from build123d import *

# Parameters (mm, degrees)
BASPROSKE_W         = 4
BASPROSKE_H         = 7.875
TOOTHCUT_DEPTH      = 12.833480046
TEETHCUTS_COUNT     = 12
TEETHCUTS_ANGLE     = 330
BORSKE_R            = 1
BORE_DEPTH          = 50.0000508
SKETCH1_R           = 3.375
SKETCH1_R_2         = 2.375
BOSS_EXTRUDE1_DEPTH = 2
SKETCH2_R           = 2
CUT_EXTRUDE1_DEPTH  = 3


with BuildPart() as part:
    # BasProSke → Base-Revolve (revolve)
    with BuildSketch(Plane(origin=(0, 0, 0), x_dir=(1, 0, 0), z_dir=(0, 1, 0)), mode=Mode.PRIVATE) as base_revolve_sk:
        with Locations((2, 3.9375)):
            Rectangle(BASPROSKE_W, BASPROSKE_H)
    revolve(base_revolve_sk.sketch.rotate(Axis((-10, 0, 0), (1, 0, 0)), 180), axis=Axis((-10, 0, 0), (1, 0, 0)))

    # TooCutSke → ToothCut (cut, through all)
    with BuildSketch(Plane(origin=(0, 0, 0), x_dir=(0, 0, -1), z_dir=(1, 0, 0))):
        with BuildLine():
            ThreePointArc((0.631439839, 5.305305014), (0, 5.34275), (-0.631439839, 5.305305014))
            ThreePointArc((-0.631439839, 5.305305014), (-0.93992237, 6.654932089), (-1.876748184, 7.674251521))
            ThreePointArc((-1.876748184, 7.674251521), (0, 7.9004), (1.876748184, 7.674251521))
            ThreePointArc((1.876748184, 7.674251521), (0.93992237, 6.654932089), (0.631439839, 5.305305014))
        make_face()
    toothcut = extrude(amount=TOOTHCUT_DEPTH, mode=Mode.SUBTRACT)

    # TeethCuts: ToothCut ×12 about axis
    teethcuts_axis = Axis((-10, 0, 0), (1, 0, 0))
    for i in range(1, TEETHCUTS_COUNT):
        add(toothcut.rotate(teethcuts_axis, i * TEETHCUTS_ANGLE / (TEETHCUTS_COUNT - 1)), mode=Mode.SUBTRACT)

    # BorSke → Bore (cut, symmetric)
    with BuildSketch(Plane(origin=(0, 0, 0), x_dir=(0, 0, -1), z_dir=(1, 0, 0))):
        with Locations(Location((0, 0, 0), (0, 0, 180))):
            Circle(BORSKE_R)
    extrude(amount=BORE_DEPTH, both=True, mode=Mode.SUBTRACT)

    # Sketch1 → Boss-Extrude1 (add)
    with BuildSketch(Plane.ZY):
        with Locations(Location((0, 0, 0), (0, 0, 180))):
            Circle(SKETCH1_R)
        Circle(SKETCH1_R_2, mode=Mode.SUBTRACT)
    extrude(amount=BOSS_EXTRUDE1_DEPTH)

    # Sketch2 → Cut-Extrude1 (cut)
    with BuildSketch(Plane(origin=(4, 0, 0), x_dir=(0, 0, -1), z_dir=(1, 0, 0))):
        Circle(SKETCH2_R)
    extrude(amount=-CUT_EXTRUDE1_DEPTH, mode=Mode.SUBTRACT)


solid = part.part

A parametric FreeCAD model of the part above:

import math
import FreeCAD as App
import Part
import Sketcher
from FreeCAD import Vector
Q = App.Units.Quantity


def add_polygon(sketch, points):
    """Adds a closed chain of lines whose ends are joined by coincident constraints."""
    first, n = sketch.GeometryCount, len(points)
    for a, b in zip(points, points[1:] + points[:1]):
        sketch.addGeometry(Part.LineSegment(App.Vector(*a, 0), App.Vector(*b, 0)), False)
    for i in range(n):
        sketch.addConstraint(Sketcher.Constraint("Coincident", first + i, 2, first + (i + 1) % n, 1))

doc = App.newDocument("Part")
params = doc.addObject("Spreadsheet::Sheet", "Params")
for row, (alias, value) in enumerate([
    ("sketch1_width", "4 mm"),
    ("revolution_angle", "360 deg"),
    ("sketch2_radius", "2.7 mm"),
    ("sketch3_diameter", "2 mm"),
    ("pocket2_length", "100.000102 mm"),
    ("sketch4_diameter", "6.75 mm"),
    ("sketch4_diameter2", "4.75 mm"),
    ("pad1_length", "2 mm"),
    ("sketch5_diameter", "4 mm"),
    ("pocket3_length", "3 mm"),
], start=1):
    params.set(f"A{row}", alias)
    params.set(f"B{row}", "=" + value)
    params.setAlias(f"B{row}", alias)

body = doc.addObject("PartDesign::Body", "Body")

sketch1 = doc.addObject("Sketcher::SketchObject", "Sketch")
body.addObject(sketch1)
sketch1.AttachmentSupport = (doc.XZ_Plane, [""])
sketch1.MapMode = "FlatFace"
add_polygon(sketch1, [(0, -7.9), (0, 0), (4, 0), (4, -7.9)])
sketch1.addConstraint([
    Sketcher.Constraint("Vertical", 0),
    Sketcher.Constraint("Horizontal", 1),
    Sketcher.Constraint("Vertical", 2),
    Sketcher.Constraint("Horizontal", 3),
    Sketcher.Constraint("Coincident", 0, 2, -1, 1),
    Sketcher.Constraint("DistanceX", 1, 1, 1, 2, Q("4 mm")),
    Sketcher.Constraint("DistanceY", 0, 1, 0, 2, Q("7.875 mm")),
])
sketch1.setExpression("Constraints[9]", "Params.sketch1_width")
revolution = doc.addObject("PartDesign::Revolution", "Revolution")
body.addObject(revolution)
revolution.Profile = sketch1
revolution.ReferenceAxis = (sketch1, ["H_Axis"])
revolution.setExpression("Angle", "Params.revolution_angle")

sketch2 = doc.addObject("Sketcher::SketchObject", "Sketch001")
body.addObject(sketch2)
sketch2.AttachmentSupport = (doc.YZ_Plane, [""])
sketch2.MapMode = "FlatFace"
sketch2.addGeometry([
    Part.ArcOfCircle(Part.Circle(Vector(0, 0, 0), Vector(0, 0, 1), 5.3), math.radians(-6.79), math.radians(6.79)),
    Part.ArcOfCircle(Part.Circle(Vector(5.4, -3.3, 0), Vector(0, 0, 1), 2.7), math.radians(33), math.radians(92)),
    Part.ArcOfCircle(Part.Circle(Vector(0, 0, 0), Vector(0, 0, 1), 7.9), math.radians(-14), math.radians(14)),
    Part.ArcOfCircle(Part.Circle(Vector(5.4, 3.3, 0), Vector(0, 0, 1), 2.7), math.radians(-92), math.radians(-33)),
], False)
sketch2.addConstraint([
    Sketcher.Constraint("Coincident", 0, 1, 1, 2),
    Sketcher.Constraint("Coincident", 1, 1, 2, 1),
    Sketcher.Constraint("Coincident", 2, 2, 3, 2),
    Sketcher.Constraint("Coincident", 3, 1, 0, 2),
    Sketcher.Constraint("Coincident", 0, 3, -1, 1),
    Sketcher.Constraint("Coincident", 2, 3, -1, 1),
    Sketcher.Constraint("Equal", 1, 3),
    Sketcher.Constraint("Symmetric", 1, 3, 3, 3, -1),
    Sketcher.Constraint("Radius", 1, Q("2.7 mm")),
    Sketcher.Constraint("Radius", 2, Q("7.9004 mm")),
    Sketcher.Constraint("Radius", 0, Q("5.34275 mm")),
    Sketcher.Constraint("DistanceX", 0, 1, 1, 3, Q("0.093301 mm")),
    Sketcher.Constraint("DistanceY", 0, 1, -1, 1, Q("0.63144 mm")),
])
sketch2.setExpression("Constraints[8]", "Params.sketch2_radius")
pocket1 = doc.addObject("PartDesign::Pocket", "Pocket")
body.addObject(pocket1)
pocket1.Profile = sketch2
pocket1.Type = "ThroughAll"
pocket1.Reversed = True
doc.recompute()

polarpattern = doc.addObject("PartDesign::PolarPattern", "PolarPattern")
body.addObject(polarpattern)
polarpattern.Originals = [pocket1]
polarpattern.Axis = (doc.X_Axis, [""])
polarpattern.Angle = 360
polarpattern.Occurrences = 12
body.Tip = polarpattern

sketch3 = doc.addObject("Sketcher::SketchObject", "Sketch002")
body.addObject(sketch3)
sketch3.AttachmentSupport = (doc.YZ_Plane, [""])
sketch3.MapMode = "FlatFace"
sketch3.addGeometry(Part.Circle(Vector(0, 0, 0), Vector(0, 0, 1), 1), False)
sketch3.addConstraint([
    Sketcher.Constraint("Coincident", 0, 3, -1, 1),
    Sketcher.Constraint("Diameter", 0, Q("2 mm")),
])
sketch3.setExpression("Constraints[1]", "Params.sketch3_diameter")
pocket2 = doc.addObject("PartDesign::Pocket", "Pocket001")
body.addObject(pocket2)
pocket2.Profile = sketch3
pocket2.setExpression("Length", "Params.pocket2_length")
pocket2.Midplane = True

sketch4 = doc.addObject("Sketcher::SketchObject", "Sketch003")
body.addObject(sketch4)
sketch4.AttachmentSupport = (doc.YZ_Plane, [""])
sketch4.MapMode = "FlatFace"
sketch4.addGeometry([
    Part.Circle(Vector(0, 0, 0), Vector(0, 0, 1), 3.4),
    Part.Circle(Vector(0, 0, 0), Vector(0, 0, 1), 2.4),
], False)
sketch4.addConstraint([
    Sketcher.Constraint("Coincident", 0, 3, -1, 1),
    Sketcher.Constraint("Coincident", 1, 3, -1, 1),
    Sketcher.Constraint("Diameter", 0, Q("6.75 mm")),
    Sketcher.Constraint("Diameter", 1, Q("4.75 mm")),
])
sketch4.setExpression("Constraints[2]", "Params.sketch4_diameter")
sketch4.setExpression("Constraints[3]", "Params.sketch4_diameter2")
pad1 = doc.addObject("PartDesign::Pad", "Pad")
body.addObject(pad1)
pad1.Profile = sketch4
pad1.setExpression("Length", "Params.pad1_length")
pad1.Reversed = True

sketch5 = doc.addObject("Sketcher::SketchObject", "Sketch004")
body.addObject(sketch5)
sketch5.AttachmentSupport = (doc.YZ_Plane, [""])
sketch5.MapMode = "FlatFace"
sketch5.AttachmentOffset = App.Placement(Vector(0, 0, 4), App.Rotation())
sketch5.addGeometry(Part.Circle(Vector(0, 0, 0), Vector(0, 0, 1), 2), False)
sketch5.addConstraint([
    Sketcher.Constraint("Coincident", 0, 3, -1, 1),
    Sketcher.Constraint("Diameter", 0, Q("4 mm")),
])
sketch5.setExpression("Constraints[1]", "Params.sketch5_diameter")
pocket3 = doc.addObject("PartDesign::Pocket", "Pocket002")
body.addObject(pocket3)
pocket3.Profile = sketch5
pocket3.setExpression("Length", "Params.pocket3_length")

doc.recompute()
